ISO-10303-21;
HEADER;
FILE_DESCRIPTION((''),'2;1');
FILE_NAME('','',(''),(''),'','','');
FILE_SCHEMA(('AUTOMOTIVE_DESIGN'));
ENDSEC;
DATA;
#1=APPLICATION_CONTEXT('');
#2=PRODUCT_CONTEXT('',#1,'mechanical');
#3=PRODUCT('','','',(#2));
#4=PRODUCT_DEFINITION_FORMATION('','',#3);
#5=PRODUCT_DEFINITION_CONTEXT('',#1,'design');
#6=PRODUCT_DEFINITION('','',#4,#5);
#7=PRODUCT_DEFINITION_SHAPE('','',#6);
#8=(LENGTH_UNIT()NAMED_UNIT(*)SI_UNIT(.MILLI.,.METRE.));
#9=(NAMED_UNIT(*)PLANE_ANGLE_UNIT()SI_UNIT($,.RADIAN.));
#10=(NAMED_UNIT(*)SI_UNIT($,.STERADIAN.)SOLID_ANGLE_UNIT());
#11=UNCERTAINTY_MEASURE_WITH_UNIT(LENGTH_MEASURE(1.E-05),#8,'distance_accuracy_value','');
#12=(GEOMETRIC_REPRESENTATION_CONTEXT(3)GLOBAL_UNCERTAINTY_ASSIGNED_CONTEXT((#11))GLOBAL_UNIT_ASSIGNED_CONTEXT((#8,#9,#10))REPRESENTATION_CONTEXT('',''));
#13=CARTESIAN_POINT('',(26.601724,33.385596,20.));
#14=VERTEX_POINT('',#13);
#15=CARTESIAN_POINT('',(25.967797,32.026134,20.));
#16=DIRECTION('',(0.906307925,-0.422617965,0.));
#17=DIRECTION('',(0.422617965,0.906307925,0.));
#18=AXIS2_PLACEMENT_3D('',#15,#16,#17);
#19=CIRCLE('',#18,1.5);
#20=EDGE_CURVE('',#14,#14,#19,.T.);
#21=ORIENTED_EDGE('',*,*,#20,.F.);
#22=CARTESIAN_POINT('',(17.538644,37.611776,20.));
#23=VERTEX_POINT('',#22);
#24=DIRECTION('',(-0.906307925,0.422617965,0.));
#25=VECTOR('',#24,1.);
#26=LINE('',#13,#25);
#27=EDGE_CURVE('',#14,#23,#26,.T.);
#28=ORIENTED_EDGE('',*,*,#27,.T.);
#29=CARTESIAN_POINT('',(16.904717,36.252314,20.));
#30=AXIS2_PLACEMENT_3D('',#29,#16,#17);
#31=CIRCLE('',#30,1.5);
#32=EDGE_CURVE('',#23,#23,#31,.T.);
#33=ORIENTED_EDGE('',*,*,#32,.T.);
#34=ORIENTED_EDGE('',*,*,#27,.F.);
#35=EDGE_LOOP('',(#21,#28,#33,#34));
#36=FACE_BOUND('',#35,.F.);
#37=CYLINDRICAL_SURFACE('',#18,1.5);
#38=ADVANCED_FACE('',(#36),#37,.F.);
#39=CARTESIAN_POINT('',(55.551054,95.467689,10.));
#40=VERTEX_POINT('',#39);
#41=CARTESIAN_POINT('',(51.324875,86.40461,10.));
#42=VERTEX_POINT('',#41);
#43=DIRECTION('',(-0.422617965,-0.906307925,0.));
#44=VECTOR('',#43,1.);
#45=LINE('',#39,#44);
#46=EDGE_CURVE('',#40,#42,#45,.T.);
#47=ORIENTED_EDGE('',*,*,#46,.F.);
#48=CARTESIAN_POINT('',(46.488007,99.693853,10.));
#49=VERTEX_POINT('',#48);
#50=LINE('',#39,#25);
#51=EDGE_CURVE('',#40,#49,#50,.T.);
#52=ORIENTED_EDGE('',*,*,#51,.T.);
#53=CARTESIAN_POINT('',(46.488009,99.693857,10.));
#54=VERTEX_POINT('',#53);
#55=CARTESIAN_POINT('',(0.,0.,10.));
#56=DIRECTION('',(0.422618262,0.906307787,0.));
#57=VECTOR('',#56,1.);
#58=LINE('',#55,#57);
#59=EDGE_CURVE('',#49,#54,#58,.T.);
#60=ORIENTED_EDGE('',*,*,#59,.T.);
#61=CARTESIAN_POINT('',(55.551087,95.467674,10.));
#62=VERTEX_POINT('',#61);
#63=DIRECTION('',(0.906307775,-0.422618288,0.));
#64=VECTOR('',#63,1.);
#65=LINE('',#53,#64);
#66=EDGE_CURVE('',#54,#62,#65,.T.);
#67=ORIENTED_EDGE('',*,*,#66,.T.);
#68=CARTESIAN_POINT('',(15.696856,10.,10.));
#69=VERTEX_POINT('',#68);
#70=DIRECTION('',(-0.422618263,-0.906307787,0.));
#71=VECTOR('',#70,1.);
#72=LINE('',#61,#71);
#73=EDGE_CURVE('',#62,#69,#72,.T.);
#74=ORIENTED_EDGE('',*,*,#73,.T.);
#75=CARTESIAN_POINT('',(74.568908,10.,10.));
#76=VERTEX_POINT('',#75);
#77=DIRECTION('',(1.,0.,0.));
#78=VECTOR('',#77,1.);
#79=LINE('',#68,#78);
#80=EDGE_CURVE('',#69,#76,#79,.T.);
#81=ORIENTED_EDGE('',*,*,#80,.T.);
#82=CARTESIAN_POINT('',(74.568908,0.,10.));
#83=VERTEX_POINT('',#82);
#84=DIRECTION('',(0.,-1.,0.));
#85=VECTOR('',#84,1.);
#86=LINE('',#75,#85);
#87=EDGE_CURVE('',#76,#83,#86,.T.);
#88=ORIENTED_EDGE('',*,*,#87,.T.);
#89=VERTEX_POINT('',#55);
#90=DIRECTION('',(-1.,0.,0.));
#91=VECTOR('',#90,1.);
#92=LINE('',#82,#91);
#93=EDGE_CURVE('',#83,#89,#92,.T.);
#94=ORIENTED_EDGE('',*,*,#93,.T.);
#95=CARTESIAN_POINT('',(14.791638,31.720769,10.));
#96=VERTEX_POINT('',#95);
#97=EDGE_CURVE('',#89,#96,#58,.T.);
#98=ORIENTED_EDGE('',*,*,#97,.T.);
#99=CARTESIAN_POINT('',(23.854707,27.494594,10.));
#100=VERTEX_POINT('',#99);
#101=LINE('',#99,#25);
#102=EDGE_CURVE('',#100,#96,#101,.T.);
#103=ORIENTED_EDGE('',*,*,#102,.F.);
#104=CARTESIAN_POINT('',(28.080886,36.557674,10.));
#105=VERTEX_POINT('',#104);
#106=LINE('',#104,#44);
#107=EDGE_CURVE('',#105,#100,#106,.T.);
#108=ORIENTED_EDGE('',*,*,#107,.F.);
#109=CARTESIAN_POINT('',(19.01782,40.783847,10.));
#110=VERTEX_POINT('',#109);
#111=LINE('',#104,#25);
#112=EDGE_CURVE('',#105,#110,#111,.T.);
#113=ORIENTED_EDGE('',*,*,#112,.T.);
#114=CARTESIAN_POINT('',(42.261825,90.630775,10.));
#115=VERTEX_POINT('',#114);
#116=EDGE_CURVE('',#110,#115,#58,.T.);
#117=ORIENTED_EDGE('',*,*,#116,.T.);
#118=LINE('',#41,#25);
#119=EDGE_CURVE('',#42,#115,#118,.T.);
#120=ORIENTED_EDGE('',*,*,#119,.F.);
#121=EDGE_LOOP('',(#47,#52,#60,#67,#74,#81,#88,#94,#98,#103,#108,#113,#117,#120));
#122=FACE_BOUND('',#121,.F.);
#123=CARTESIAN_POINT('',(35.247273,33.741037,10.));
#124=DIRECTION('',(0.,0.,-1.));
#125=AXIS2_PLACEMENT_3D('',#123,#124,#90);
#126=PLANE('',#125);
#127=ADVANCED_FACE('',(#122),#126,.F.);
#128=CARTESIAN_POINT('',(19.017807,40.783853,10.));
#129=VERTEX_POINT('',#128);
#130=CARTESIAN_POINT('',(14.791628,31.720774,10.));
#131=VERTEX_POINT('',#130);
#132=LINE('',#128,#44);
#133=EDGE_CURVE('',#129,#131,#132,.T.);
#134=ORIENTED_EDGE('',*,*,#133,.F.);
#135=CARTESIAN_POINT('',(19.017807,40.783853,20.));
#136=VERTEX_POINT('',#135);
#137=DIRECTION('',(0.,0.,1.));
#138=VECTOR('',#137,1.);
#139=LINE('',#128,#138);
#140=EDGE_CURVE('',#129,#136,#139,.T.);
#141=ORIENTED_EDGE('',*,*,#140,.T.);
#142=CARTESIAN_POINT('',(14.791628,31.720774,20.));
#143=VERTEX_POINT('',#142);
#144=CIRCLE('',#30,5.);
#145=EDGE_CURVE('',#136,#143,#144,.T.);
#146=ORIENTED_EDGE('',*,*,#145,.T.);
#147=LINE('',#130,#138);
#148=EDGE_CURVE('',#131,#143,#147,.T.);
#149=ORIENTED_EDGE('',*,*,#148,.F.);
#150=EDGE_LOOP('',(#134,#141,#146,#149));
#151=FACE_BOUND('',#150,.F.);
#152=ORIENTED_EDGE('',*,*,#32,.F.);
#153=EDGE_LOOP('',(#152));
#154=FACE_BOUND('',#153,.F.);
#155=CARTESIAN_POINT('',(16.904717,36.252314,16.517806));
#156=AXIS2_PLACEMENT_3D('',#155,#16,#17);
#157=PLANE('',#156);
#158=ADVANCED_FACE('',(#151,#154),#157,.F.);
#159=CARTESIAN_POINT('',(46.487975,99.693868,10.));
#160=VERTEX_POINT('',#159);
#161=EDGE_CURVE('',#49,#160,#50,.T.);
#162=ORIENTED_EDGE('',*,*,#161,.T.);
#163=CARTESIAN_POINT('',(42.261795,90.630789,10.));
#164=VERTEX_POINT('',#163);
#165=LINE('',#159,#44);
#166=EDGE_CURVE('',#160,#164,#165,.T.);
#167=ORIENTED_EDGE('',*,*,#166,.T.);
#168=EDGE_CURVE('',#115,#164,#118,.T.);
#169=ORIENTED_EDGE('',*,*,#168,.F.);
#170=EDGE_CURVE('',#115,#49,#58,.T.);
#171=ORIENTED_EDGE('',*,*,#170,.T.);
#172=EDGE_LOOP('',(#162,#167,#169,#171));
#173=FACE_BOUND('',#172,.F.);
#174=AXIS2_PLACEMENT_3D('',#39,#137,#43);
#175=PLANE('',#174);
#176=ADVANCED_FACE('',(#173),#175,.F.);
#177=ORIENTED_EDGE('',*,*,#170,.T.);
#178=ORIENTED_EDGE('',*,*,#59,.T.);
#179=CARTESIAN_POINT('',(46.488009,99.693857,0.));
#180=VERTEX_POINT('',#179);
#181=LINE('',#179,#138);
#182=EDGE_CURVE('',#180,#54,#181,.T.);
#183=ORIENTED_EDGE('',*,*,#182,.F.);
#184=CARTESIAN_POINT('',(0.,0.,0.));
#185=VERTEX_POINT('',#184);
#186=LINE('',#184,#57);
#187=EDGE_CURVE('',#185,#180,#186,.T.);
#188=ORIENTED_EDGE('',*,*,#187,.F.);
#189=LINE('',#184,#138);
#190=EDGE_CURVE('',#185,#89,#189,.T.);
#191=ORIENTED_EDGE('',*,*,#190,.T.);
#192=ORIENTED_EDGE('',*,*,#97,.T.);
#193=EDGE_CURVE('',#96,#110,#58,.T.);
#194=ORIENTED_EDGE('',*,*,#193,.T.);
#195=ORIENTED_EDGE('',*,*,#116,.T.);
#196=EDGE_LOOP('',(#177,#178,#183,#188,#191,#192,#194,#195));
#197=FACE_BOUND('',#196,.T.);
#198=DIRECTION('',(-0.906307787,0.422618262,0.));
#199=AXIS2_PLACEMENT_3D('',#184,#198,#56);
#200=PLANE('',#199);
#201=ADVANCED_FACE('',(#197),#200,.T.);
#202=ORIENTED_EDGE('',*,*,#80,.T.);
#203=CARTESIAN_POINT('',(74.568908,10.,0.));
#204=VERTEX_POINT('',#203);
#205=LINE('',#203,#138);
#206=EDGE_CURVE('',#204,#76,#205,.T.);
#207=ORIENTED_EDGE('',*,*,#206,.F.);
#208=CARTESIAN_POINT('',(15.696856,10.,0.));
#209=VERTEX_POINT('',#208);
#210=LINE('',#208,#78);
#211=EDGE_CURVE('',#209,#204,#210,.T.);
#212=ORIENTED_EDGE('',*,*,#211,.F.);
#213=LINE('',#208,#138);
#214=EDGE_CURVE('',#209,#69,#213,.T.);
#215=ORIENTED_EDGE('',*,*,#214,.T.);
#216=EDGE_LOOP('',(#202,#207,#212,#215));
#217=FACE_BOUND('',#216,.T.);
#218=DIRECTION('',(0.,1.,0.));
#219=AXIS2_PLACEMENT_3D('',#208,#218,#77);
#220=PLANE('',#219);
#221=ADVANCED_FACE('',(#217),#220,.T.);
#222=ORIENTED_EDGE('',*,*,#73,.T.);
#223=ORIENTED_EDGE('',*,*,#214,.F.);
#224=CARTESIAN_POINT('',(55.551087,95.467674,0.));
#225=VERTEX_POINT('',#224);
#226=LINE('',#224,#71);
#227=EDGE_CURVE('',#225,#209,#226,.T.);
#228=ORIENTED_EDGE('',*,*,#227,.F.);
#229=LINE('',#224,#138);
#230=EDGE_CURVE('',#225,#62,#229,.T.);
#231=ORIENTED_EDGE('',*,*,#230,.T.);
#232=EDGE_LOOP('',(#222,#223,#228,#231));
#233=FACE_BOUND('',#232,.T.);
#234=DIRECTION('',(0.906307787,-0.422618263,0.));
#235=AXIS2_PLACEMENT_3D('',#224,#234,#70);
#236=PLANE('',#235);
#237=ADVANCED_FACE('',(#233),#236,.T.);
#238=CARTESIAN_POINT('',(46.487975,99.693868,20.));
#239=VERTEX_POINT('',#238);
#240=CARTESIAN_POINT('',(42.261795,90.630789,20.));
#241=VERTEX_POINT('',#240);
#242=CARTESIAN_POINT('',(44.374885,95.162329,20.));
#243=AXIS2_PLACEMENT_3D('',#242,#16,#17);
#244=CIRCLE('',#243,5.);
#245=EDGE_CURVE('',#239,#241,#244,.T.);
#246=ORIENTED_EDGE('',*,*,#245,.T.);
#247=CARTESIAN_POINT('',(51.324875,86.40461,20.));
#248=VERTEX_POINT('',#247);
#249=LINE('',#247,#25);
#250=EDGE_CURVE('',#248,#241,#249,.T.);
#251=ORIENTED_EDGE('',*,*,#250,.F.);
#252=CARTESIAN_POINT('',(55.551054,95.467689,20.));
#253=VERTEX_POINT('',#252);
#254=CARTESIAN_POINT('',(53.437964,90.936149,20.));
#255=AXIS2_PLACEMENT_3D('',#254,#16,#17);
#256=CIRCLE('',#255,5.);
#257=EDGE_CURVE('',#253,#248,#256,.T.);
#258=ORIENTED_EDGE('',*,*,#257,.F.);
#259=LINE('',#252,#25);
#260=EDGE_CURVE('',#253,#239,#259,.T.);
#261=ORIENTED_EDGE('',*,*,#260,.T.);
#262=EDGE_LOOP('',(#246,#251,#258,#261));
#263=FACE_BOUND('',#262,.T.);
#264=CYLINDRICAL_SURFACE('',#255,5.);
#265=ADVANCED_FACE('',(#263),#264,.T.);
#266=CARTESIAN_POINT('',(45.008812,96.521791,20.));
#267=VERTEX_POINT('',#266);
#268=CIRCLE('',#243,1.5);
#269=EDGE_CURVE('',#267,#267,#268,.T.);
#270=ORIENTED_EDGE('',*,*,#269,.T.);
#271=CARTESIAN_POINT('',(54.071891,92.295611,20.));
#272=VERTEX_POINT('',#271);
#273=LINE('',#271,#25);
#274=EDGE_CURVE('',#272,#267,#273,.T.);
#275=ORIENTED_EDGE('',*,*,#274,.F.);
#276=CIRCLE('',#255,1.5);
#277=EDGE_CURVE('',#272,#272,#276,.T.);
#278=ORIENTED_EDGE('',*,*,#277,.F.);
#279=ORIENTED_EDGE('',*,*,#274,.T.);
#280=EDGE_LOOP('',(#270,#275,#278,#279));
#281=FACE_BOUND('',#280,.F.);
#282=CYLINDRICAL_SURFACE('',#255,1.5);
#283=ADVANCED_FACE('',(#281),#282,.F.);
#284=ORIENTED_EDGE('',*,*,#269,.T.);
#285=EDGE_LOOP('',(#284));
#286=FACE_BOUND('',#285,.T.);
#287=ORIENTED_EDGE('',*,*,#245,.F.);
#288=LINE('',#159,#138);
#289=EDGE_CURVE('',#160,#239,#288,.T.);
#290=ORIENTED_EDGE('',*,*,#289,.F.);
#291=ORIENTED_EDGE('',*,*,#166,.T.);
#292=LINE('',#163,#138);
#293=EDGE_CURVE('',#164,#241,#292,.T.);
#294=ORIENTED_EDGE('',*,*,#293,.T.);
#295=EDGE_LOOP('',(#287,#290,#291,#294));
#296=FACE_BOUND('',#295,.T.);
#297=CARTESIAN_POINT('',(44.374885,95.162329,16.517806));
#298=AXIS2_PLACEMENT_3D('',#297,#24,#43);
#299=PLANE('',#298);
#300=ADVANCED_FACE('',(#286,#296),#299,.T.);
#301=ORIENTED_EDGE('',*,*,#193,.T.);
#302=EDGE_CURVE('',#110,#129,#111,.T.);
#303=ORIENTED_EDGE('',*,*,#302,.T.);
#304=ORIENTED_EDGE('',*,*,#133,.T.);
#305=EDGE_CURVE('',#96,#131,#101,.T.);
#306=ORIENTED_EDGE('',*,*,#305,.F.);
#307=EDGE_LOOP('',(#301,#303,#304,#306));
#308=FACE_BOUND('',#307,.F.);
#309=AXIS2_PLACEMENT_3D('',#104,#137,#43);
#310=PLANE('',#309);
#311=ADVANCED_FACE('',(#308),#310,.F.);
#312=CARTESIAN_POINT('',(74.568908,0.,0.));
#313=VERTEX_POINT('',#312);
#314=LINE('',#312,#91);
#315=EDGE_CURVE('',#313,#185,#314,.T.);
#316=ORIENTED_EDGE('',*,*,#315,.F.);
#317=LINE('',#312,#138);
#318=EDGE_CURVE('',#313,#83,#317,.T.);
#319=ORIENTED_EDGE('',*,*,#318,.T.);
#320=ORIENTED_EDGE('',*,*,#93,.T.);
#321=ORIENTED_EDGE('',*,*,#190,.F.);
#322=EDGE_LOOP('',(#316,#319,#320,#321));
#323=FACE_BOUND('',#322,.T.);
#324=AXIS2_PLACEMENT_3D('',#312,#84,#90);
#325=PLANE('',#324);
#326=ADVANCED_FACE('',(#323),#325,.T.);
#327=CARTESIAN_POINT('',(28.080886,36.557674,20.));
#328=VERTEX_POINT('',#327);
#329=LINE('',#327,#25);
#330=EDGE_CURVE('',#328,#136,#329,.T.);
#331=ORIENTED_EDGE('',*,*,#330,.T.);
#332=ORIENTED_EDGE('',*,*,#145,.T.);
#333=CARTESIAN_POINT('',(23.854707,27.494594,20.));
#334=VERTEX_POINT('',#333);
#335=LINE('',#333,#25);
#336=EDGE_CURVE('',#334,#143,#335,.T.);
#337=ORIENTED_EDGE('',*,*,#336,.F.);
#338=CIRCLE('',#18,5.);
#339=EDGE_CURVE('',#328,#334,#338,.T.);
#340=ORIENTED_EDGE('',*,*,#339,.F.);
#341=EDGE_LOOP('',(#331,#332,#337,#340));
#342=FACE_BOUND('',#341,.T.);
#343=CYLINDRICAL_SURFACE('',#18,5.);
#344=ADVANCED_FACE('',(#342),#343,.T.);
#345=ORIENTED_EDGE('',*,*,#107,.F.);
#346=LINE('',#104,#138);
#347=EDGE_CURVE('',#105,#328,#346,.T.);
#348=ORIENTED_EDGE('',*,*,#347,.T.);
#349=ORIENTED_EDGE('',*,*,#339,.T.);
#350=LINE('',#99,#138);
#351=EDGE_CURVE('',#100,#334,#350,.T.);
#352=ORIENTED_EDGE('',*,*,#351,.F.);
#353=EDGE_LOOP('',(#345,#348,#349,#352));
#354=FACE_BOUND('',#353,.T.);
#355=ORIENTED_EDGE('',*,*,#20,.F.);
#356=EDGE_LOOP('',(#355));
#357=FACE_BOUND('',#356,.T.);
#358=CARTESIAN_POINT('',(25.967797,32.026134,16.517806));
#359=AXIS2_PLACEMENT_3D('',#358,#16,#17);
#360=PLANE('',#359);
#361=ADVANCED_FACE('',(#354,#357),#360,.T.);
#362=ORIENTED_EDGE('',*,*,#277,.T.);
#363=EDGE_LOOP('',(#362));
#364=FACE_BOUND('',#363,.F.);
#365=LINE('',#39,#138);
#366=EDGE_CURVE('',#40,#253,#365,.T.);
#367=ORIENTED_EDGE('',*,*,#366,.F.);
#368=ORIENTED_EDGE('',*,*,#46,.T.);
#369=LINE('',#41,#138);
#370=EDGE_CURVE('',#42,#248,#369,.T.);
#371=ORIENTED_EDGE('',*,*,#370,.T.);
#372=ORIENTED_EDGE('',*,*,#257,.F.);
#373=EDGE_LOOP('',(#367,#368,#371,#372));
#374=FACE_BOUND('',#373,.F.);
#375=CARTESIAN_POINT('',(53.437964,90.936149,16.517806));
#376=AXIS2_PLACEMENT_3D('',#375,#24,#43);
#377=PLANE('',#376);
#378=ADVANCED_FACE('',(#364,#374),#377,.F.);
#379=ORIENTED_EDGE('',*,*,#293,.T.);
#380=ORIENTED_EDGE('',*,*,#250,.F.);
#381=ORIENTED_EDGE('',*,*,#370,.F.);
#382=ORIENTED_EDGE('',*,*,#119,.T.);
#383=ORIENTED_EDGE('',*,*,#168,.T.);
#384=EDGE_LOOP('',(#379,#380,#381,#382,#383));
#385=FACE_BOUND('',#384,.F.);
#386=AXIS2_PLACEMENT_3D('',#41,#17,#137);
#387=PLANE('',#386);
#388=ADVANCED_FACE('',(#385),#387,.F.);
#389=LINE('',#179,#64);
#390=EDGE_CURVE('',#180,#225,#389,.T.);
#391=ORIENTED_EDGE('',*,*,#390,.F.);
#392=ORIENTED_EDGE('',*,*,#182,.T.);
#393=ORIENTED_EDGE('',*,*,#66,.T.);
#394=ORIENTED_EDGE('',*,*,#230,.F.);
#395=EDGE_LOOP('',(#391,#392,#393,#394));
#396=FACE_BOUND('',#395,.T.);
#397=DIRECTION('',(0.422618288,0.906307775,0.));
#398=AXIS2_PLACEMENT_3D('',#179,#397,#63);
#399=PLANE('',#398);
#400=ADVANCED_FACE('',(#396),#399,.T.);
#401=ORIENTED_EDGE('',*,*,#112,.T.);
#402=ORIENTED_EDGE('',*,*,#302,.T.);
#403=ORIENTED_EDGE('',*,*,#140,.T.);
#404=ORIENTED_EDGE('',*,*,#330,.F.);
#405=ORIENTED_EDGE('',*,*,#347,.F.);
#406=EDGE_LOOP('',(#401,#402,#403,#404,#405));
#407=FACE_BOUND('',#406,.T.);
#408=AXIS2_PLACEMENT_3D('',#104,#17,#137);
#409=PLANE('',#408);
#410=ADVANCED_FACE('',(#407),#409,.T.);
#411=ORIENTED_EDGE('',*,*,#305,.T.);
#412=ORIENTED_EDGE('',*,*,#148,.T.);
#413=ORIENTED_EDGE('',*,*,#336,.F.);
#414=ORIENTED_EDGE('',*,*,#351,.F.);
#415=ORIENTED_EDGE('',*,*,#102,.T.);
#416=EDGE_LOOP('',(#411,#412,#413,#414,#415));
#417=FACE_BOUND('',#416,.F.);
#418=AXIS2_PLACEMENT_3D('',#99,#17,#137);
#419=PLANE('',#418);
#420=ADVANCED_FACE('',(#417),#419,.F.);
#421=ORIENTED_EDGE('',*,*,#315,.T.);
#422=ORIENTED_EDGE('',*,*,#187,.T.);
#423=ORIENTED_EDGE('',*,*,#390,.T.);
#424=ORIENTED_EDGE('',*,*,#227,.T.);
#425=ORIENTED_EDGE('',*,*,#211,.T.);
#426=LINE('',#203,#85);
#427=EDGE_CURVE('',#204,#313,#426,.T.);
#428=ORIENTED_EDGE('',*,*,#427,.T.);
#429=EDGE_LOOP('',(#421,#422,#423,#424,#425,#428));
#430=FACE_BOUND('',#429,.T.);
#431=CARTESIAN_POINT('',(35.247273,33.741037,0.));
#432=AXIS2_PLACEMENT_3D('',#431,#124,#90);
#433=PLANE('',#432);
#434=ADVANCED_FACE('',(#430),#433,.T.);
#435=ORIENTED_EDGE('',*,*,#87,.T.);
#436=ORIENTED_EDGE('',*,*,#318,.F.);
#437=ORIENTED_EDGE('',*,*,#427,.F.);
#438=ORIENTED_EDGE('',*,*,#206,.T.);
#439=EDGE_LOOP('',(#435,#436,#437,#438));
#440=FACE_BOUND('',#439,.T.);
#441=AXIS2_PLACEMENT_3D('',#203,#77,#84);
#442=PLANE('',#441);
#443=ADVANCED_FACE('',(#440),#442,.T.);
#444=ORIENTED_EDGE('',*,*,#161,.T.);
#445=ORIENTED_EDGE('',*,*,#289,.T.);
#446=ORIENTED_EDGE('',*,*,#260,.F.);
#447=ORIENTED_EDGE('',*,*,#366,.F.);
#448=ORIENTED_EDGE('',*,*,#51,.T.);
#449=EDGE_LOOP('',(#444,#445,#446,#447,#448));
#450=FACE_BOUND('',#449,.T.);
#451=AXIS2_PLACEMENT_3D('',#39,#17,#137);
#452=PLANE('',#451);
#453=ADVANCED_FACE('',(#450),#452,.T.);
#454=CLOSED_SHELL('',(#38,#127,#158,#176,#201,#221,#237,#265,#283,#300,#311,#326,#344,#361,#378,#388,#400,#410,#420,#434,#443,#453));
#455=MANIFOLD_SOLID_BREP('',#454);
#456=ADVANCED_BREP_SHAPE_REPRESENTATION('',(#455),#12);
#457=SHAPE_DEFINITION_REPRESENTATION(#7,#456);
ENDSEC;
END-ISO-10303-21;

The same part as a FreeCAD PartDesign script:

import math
import FreeCAD as App
import Part
import Sketcher
Q = App.Units.Quantity

doc = App.newDocument("Part")
body = doc.addObject("PartDesign::Body", "Body")

sketch1 = doc.addObject("Sketcher::SketchObject", "Sketch")
body.addObject(sketch1)
sketch1.AttachmentSupport = (doc.XY_Plane, [""])
sketch1.MapMode = "FlatFace"
sketch1.addGeometry([
    Part.LineSegment(App.Vector(0, 0, 0), App.Vector(74.568908, 0, 0)),
    Part.LineSegment(App.Vector(74.568908, 0, 0), App.Vector(74.568908, 10, 0)),
    Part.LineSegment(App.Vector(74.568908, 10, 0), App.Vector(15.696856, 10, 0)),
    Part.LineSegment(App.Vector(15.696856, 10, 0), App.Vector(55.551087, 95.467674, 0)),
    Part.LineSegment(App.Vector(55.551087, 95.467674, 0), App.Vector(46.488009, 99.693857, 0)),
    Part.LineSegment(App.Vector(46.488009, 99.693857, 0), App.Vector(0, 0, 0)),
], False)
sketch1.addConstraint([
    Sketcher.Constraint("Coincident", 0, 2, 1, 1),
    Sketcher.Constraint("Coincident", 1, 2, 2, 1),
    Sketcher.Constraint("Coincident", 2, 2, 3, 1),
    Sketcher.Constraint("Coincident", 3, 2, 4, 1),
    Sketcher.Constraint("Coincident", 4, 2, 5, 1),
    Sketcher.Constraint("Coincident", 5, 2, 0, 1),
    Sketcher.Constraint("Horizontal", 0),
    Sketcher.Constraint("Vertical", 1),
    Sketcher.Constraint("Horizontal", 2),
    Sketcher.Constraint("Coincident", 5, 2, -1, 1),
    Sketcher.Constraint("Perpendicular", 3, 4),
    Sketcher.Constraint("Perpendicular", 4, 5),
    Sketcher.Constraint("DistanceY", 1, 1, 1, 2, 10.0),
    Sketcher.Constraint("Angle", 3, Q("65 deg")),
    Sketcher.Constraint("Distance", 4, 10.0),
    Sketcher.Constraint("Distance", 5, 110.0),
    Sketcher.Constraint("DistanceX", 2, 2, 2, 1, 58.872052),
])
pad1 = doc.addObject("PartDesign::Pad", "Pad")
body.addObject(pad1)
pad1.Profile = sketch1
pad1.Length = 10

sketch2 = doc.addObject("Sketcher::SketchObject", "Sketch001")
body.addObject(sketch2)
sketch2.Placement = App.Placement(App.Vector(9.063078, -4.226183, 0), App.Rotation(App.Vector(0.422617965, 0.906307925, 0), App.Vector(0, 0, 0.999999999), App.Vector(0.906307925, -0.422617965, 0), "ZXY"))
sketch2.addGeometry([
    Part.LineSegment(App.Vector(100, 10, 0), App.Vector(110, 10, 0)),
    Part.LineSegment(App.Vector(110, 10, 0), App.Vector(110, 20, 0)),
    Part.ArcOfCircle(Part.Circle(App.Vector(105, 20, 0), App.Vector(0, 0, 1), 5), math.radians(0), math.radians(180)),
    Part.LineSegment(App.Vector(100, 20, 0), App.Vector(100, 10, 0)),
    Part.Circle(App.Vector(105, 20, 0), App.Vector(0, 0, 1), 1.5),
    Part.LineSegment(App.Vector(45, 10, 0), App.Vector(45, 20, 0)),
    Part.ArcOfCircle(Part.Circle(App.Vector(40, 20, 0), App.Vector(0, 0, 1), 5), math.radians(0), math.radians(180)),
    Part.LineSegment(App.Vector(35, 20, 0), App.Vector(35, 10, 0)),
    Part.LineSegment(App.Vector(35, 10, 0), App.Vector(45, 10, 0)),
    Part.Circle(App.Vector(40, 20, 0), App.Vector(0, 0, 1), 1.5),
], False)
sketch2.addConstraint([
    Sketcher.Constraint("Coincident", 0, 2, 1, 1),
    Sketcher.Constraint("Tangent", 1, 2, 2, 1),
    Sketcher.Constraint("Tangent", 2, 2, 3, 1),
    Sketcher.Constraint("Coincident", 3, 2, 0, 1),
    Sketcher.Constraint("Tangent", 5, 2, 6, 1),
    Sketcher.Constraint("Tangent", 6, 2, 7, 1),
    Sketcher.Constraint("Coincident", 7, 2, 8, 1),
    Sketcher.Constraint("Coincident", 8, 2, 5, 1),
    Sketcher.Constraint("Horizontal", 0),
    Sketcher.Constraint("Vertical", 1),
    Sketcher.Constraint("Vertical", 3),
    Sketcher.Constraint("Vertical", 5),
    Sketcher.Constraint("Vertical", 7),
    Sketcher.Constraint("Horizontal", 8),
    Sketcher.Constraint("Coincident", 4, 3, 2, 3),
    Sketcher.Constraint("Coincident", 9, 3, 6, 3),
    Sketcher.Constraint("Equal", 2, 6),
    Sketcher.Constraint("Equal", 4, 9),
    Sketcher.Constraint("Horizontal", 4, 3, 6, 3),
    Sketcher.Constraint("Horizontal", 3, 2, 7, 2),
    Sketcher.Constraint("Equal", 8, 1),
    Sketcher.Constraint("Diameter", 4, 3.0),
    Sketcher.Constraint("Radius", 2, 5.0),
    Sketcher.Constraint("DistanceX", -1, 1, 2, 3, 105.0),
    Sketcher.Constraint("DistanceY", -1, 1, 2, 3, 20.0),
    Sketcher.Constraint("DistanceX", -1, 1, 6, 3, 40.0),
])
pad2 = doc.addObject("PartDesign::Pad", "Pad001")
body.addObject(pad2)
pad2.Profile = sketch2
pad2.Length = 10
pad2.Reversed = True

doc.recompute()
